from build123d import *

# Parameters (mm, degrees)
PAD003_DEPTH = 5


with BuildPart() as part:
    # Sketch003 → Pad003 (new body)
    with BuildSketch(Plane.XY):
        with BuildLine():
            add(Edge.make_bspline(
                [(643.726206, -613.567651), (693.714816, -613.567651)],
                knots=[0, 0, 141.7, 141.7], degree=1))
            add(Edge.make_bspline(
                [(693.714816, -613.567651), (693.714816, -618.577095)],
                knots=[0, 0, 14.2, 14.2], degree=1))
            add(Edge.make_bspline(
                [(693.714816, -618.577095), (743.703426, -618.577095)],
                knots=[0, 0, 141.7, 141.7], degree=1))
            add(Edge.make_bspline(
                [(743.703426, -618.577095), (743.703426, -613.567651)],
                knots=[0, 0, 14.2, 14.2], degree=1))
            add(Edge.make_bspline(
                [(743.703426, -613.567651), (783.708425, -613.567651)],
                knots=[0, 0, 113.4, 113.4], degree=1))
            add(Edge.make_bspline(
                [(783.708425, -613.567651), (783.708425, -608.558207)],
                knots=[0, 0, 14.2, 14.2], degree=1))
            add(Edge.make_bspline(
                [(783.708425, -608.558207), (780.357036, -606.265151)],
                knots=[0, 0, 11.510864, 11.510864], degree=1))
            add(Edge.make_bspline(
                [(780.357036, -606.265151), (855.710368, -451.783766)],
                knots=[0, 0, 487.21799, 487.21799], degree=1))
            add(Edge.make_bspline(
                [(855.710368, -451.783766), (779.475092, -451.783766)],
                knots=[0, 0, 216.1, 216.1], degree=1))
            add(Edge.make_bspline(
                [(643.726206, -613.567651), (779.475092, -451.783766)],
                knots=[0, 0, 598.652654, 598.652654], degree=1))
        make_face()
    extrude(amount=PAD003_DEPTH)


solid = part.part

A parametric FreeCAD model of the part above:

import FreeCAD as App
import Part
import Sketcher
from FreeCAD import Vector

doc = App.newDocument("Part")
body = doc.addObject("PartDesign::Body", "Body")

sketch1 = doc.addObject("Sketcher::SketchObject", "Sketch")
body.addObject(sketch1)
sketch1.AttachmentSupport = (doc.XY_Plane, [""])
sketch1.MapMode = "FlatFace"
sketch1.addGeometry(Part.BSplineCurve([Vector(643.726206, -613.567651, 0), Vector(693.714816, -613.567651, 0)], [2, 2], [0, 141.7], False, 1, [1, 1], False), False)
sketch1.addGeometry(Part.BSplineCurve([Vector(693.714816, -613.567651, 0), Vector(693.714816, -618.577095, 0)], [2, 2], [0, 14.2], False, 1, [1, 1], False), False)
sketch1.addGeometry(Part.BSplineCurve([Vector(693.714816, -618.577095, 0), Vector(743.703426, -618.577095, 0)], [2, 2], [0, 141.7], False, 1, [1, 1], False), False)
sketch1.addGeometry(Part.BSplineCurve([Vector(743.703426, -618.577095, 0), Vector(743.703426, -613.567651, 0)], [2, 2], [0, 14.2], False, 1, [1, 1], False), False)
sketch1.addGeometry(Part.BSplineCurve([Vector(743.703426, -613.567651, 0), Vector(783.708425, -613.567651, 0)], [2, 2], [0, 113.4], False, 1, [1, 1], False), False)
sketch1.addGeometry(Part.BSplineCurve([Vector(783.708425, -613.567651, 0), Vector(783.708425, -608.558207, 0)], [2, 2], [0, 14.2], False, 1, [1, 1], False), False)
sketch1.addGeometry(Part.BSplineCurve([Vector(783.708425, -608.558207, 0), Vector(780.357036, -606.265151, 0)], [2, 2], [0, 11.510864], False, 1, [1, 1], False), False)
sketch1.addGeometry(Part.BSplineCurve([Vector(780.357036, -606.265151, 0), Vector(855.710368, -451.783766, 0)], [2, 2], [0, 487.21799], False, 1, [1, 1], False), False)
sketch1.addGeometry(Part.BSplineCurve([Vector(855.710368, -451.783766, 0), Vector(779.475092, -451.783766, 0)], [2, 2], [0, 216.1], False, 1, [1, 1], False), False)
sketch1.addGeometry(Part.BSplineCurve([Vector(643.726206, -613.567651, 0), Vector(779.475092, -451.783766, 0)], [2, 2], [0, 598.652654], False, 1, [1, 1], False), False)
sketch1.addConstraint(Sketcher.Constraint("Block", 0))
sketch1.addConstraint(Sketcher.Constraint("Block", 1))
sketch1.addConstraint(Sketcher.Constraint("Block", 2))
sketch1.addConstraint(Sketcher.Constraint("Block", 3))
sketch1.addConstraint(Sketcher.Constraint("Block", 4))
sketch1.addConstraint(Sketcher.Constraint("Block", 5))
sketch1.addConstraint(Sketcher.Constraint("Block", 6))
sketch1.addConstraint(Sketcher.Constraint("Block", 7))
sketch1.addConstraint(Sketcher.Constraint("Block", 8))
sketch1.addConstraint(Sketcher.Constraint("Block", 9))
pad1 = doc.addObject("PartDesign::Pad", "Pad")
body.addObject(pad1)
pad1.Profile = sketch1
pad1.Length = 5

doc.recompute()
